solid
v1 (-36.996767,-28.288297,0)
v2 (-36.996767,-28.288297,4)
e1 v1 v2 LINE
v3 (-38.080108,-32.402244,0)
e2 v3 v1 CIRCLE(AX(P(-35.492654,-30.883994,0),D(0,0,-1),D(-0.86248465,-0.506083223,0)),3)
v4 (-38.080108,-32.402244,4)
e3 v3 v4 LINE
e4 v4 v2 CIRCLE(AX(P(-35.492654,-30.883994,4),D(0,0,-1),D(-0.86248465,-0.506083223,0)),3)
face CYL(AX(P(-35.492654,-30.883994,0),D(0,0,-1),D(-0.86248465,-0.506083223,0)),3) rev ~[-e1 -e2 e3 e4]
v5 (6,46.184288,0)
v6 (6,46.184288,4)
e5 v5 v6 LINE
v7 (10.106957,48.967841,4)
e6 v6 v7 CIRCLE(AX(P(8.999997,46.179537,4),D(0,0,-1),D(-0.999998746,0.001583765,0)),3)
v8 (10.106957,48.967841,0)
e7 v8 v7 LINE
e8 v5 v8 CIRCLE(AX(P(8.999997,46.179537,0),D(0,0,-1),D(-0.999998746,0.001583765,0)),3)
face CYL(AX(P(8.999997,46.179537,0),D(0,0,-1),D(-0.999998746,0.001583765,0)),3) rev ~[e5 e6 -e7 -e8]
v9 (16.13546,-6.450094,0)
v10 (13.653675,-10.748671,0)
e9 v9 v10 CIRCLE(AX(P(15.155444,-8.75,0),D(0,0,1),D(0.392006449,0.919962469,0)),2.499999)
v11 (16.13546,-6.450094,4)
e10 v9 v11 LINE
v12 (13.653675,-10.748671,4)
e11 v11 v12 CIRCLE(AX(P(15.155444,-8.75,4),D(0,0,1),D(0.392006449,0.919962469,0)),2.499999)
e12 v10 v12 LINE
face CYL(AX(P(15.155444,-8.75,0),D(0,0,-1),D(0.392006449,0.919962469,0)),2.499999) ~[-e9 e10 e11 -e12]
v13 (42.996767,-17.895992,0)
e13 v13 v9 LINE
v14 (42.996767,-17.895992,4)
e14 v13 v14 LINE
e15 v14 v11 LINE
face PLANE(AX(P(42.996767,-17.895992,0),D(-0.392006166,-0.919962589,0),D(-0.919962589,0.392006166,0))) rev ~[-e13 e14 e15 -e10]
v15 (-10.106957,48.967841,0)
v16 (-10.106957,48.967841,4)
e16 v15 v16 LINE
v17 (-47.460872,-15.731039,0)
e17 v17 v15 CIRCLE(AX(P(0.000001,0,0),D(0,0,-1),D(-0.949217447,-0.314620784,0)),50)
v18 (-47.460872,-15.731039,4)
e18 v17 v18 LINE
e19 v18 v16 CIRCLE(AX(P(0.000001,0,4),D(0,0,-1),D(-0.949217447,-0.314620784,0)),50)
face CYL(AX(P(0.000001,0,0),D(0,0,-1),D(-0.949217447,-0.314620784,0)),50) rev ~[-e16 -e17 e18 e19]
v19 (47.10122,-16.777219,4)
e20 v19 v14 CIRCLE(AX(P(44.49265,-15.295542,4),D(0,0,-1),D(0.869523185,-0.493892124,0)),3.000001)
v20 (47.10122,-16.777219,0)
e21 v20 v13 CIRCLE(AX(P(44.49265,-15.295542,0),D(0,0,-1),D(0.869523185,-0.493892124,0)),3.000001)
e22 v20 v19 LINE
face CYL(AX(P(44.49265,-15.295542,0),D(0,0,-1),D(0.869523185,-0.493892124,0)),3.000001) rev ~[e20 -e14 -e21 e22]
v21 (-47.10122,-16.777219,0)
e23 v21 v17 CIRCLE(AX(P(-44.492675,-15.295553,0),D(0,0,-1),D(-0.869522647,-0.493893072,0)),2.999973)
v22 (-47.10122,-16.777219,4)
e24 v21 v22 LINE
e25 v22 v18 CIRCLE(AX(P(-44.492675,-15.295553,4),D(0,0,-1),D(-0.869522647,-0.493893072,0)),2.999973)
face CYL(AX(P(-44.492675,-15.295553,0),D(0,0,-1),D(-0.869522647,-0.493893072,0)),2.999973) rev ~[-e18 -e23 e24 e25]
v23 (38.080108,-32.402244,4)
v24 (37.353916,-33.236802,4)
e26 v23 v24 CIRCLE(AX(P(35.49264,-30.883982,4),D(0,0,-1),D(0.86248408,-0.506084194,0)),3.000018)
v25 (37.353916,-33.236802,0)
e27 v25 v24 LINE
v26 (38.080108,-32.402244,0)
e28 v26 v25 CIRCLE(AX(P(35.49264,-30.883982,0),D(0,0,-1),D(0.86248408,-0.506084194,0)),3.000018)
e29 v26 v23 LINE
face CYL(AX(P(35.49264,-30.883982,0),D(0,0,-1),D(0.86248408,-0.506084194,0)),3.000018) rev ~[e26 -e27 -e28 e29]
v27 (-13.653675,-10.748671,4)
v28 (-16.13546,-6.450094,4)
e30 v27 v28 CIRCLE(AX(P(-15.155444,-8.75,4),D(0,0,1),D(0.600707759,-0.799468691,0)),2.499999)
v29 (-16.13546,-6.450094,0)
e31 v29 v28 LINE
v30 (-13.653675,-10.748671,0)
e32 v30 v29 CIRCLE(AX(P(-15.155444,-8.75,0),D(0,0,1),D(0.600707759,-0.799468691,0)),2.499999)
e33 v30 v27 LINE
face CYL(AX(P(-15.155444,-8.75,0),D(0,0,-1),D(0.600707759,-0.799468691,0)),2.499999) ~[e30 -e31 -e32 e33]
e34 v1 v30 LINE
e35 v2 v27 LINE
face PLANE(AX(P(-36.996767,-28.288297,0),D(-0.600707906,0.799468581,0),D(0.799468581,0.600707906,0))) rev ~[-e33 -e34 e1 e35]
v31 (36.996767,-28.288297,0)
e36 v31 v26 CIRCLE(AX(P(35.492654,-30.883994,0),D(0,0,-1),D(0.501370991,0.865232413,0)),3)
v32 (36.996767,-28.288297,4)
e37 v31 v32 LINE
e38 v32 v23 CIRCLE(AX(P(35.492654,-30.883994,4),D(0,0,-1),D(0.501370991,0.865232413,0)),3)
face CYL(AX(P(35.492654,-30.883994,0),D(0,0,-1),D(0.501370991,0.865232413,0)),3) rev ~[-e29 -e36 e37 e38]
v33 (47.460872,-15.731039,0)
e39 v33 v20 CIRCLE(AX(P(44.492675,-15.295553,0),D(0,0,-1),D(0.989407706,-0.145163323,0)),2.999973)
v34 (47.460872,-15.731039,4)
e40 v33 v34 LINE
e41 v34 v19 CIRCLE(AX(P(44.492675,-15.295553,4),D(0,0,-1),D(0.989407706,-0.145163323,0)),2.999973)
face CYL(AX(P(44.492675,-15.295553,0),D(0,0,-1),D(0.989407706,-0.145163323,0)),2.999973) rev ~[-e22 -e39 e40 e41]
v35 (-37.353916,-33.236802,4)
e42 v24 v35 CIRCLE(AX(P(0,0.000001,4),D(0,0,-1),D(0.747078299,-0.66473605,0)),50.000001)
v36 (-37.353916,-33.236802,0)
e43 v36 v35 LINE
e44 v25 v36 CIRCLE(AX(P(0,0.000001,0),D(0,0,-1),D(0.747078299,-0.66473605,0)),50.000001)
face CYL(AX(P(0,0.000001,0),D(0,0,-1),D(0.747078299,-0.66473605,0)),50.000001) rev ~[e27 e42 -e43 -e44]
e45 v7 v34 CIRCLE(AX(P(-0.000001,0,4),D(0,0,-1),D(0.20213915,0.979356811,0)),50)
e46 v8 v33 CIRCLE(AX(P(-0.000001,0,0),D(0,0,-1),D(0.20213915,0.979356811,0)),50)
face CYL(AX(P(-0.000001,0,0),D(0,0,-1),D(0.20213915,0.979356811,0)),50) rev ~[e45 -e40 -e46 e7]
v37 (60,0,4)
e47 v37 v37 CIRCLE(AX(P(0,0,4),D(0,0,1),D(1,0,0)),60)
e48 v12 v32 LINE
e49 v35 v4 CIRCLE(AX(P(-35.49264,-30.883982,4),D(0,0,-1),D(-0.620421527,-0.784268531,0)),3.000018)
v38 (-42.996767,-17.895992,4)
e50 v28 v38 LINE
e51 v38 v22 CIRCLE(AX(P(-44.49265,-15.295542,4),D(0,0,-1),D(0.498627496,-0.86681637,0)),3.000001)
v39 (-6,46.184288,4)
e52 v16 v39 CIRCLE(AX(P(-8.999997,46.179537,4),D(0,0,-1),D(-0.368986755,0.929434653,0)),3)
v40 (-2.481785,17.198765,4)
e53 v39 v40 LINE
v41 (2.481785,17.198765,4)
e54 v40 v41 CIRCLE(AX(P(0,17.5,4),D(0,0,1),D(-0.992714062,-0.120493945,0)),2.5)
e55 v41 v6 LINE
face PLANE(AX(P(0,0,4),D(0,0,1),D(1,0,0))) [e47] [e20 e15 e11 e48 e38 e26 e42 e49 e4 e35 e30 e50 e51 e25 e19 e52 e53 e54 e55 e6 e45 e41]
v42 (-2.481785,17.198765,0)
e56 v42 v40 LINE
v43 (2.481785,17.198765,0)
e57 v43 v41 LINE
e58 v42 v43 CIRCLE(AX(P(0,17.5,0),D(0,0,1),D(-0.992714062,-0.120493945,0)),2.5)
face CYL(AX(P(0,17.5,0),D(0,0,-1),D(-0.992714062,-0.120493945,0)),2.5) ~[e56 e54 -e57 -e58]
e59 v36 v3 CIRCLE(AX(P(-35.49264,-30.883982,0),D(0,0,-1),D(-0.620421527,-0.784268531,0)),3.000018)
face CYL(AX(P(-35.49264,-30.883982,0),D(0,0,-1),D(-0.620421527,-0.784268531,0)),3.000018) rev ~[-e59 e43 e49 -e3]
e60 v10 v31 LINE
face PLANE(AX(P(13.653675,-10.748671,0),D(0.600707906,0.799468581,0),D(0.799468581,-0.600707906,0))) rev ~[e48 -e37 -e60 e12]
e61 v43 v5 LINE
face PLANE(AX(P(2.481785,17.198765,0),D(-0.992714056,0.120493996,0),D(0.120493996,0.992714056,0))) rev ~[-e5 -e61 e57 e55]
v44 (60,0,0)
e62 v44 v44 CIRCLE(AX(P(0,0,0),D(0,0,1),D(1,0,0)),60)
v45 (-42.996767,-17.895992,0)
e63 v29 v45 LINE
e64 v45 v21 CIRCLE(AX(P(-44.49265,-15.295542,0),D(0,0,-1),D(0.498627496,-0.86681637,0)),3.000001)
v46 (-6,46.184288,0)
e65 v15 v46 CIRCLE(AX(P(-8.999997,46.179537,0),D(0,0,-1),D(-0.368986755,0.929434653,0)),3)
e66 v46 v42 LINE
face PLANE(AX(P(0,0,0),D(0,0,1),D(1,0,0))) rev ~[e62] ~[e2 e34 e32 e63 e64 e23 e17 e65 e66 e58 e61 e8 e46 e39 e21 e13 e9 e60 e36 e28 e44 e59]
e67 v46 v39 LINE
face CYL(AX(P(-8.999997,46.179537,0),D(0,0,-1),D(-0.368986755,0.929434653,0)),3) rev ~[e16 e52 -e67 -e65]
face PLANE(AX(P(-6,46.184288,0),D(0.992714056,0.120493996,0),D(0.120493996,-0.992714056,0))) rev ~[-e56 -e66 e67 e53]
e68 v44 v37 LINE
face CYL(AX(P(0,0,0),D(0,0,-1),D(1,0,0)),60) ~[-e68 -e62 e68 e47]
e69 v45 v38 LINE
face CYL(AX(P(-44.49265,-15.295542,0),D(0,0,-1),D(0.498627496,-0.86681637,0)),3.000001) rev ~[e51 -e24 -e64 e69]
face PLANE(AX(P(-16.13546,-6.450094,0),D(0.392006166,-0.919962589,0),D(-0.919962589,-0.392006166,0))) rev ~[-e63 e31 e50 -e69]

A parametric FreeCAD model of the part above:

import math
import FreeCAD as App
import Part
import Sketcher
Q = App.Units.Quantity

doc = App.newDocument("Part")
params = doc.addObject("Spreadsheet::Sheet", "Params")
for row, (alias, value) in enumerate([
    ("sketch1_diameter", "120 mm"),
    ("sketch1_radius", "3 mm"),
    ("sketch1_radius2", "50 mm"),
    ("sketch1_radius3", "2.499999 mm"),
    ("pad1_length", "4 mm"),
], start=1):
    params.set(f"A{row}", alias)
    params.set(f"B{row}", "=" + value)
    params.setAlias(f"B{row}", alias)

body = doc.addObject("PartDesign::Body", "Body")

sketch1 = body.newObject("Sketcher::SketchObject", "Sketch")
sketch1.AttachmentSupport = (doc.getObject("XY_Plane"), [""])
sketch1.MapMode = "FlatFace"
sketch1.addGeometry([
    Part.Circle(App.Vector(0, 0, 0), App.Vector(0, 0, 1), 60),
    Part.LineSegment(App.Vector(2.5, 17.2, 0), App.Vector(6, 46.2, 0)),
    Part.ArcOfCircle(Part.Circle(App.Vector(9, 46.2, 0), App.Vector(0, 0, 1), 3), math.radians(68), math.radians(180)),
    Part.ArcOfCircle(Part.Circle(App.Vector(0, 0, 0), App.Vector(0, 0, 1), 50), math.radians(-18), math.radians(78)),
    Part.ArcOfCircle(Part.Circle(App.Vector(44.5, -15.3, 0), App.Vector(0, 0, 1), 3), math.radians(-30), math.radians(-8)),
    Part.ArcOfCircle(Part.Circle(App.Vector(44.5, -15.3, 0), App.Vector(0, 0, 1), 3), math.radians(-120), math.radians(-30)),
    Part.LineSegment(App.Vector(43, -17.9, 0), App.Vector(16.1, -6.5, 0)),
    Part.ArcOfCircle(Part.Circle(App.Vector(15.2, -8.7, 0), App.Vector(0, 0, 1), 2.5), math.radians(67), math.radians(233)),
    Part.LineSegment(App.Vector(13.7, -10.7, 0), App.Vector(37, -28.3, 0)),
    Part.ArcOfCircle(Part.Circle(App.Vector(35.5, -30.9, 0), App.Vector(0, 0, 1), 3), math.radians(-30), math.radians(60)),
    Part.ArcOfCircle(Part.Circle(App.Vector(35.5, -30.9, 0), App.Vector(0, 0, 1), 3), math.radians(-52), math.radians(-30)),
    Part.ArcOfCircle(Part.Circle(App.Vector(0, 0, 0), App.Vector(0, 0, 1), 50), math.radians(-138), math.radians(-42)),
    Part.ArcOfCircle(Part.Circle(App.Vector(-35.5, -30.9, 0), App.Vector(0, 0, 1), 3), math.radians(-150), math.radians(-128)),
    Part.ArcOfCircle(Part.Circle(App.Vector(-35.5, -30.9, 0), App.Vector(0, 0, 1), 3), math.radians(120), math.radians(210)),
    Part.LineSegment(App.Vector(-37, -28.3, 0), App.Vector(-13.7, -10.7, 0)),
    Part.ArcOfCircle(Part.Circle(App.Vector(-15.2, -8.7, 0), App.Vector(0, 0, 1), 2.5), math.radians(-53), math.radians(113)),
    Part.LineSegment(App.Vector(-16.1, -6.5, 0), App.Vector(-43, -17.9, 0)),
    Part.ArcOfCircle(Part.Circle(App.Vector(-44.5, -15.3, 0), App.Vector(0, 0, 1), 3), math.radians(-150), math.radians(-60)),
    Part.ArcOfCircle(Part.Circle(App.Vector(-44.5, -15.3, 0), App.Vector(0, 0, 1), 3), math.radians(-172), math.radians(-150)),
    Part.ArcOfCircle(Part.Circle(App.Vector(0, 0, 0), App.Vector(0, 0, 1), 50), math.radians(102), math.radians(198)),
    Part.ArcOfCircle(Part.Circle(App.Vector(-9, 46.2, 0), App.Vector(0, 0, 1), 3), math.radians(0), math.radians(112)),
    Part.LineSegment(App.Vector(-6, 46.2, 0), App.Vector(-2.5, 17.2, 0)),
    Part.ArcOfCircle(Part.Circle(App.Vector(0, 17.5, 0), App.Vector(0, 0, 1), 2.5), math.radians(-173), math.radians(-7)),
], False)
sketch1.addConstraint([
    Sketcher.Constraint("Coincident", 1, 2, 2, 2),
    Sketcher.Constraint("Coincident", 2, 1, 3, 2),
    Sketcher.Constraint("Coincident", 3, 1, 4, 2),
    Sketcher.Constraint("Tangent", 4, 1, 5, 2),
    Sketcher.Constraint("Coincident", 5, 1, 6, 1),
    Sketcher.Constraint("Tangent", 6, 2, 7, 1),
    Sketcher.Constraint("Tangent", 7, 2, 8, 1),
    Sketcher.Constraint("Coincident", 8, 2, 9, 2),
    Sketcher.Constraint("Tangent", 9, 1, 10, 2),
    Sketcher.Constraint("Coincident", 10, 1, 11, 2),
    Sketcher.Constraint("Coincident", 11, 1, 12, 2),
    Sketcher.Constraint("Tangent", 12, 1, 13, 2),
    Sketcher.Constraint("Coincident", 13, 1, 14, 1),
    Sketcher.Constraint("Tangent", 14, 2, 15, 1),
    Sketcher.Constraint("Tangent", 15, 2, 16, 1),
    Sketcher.Constraint("Coincident", 16, 2, 17, 2),
    Sketcher.Constraint("Tangent", 17, 1, 18, 2),
    Sketcher.Constraint("Coincident", 18, 1, 19, 2),
    Sketcher.Constraint("Coincident", 19, 1, 20, 2),
    Sketcher.Constraint("Coincident", 20, 1, 21, 1),
    Sketcher.Constraint("Tangent", 21, 2, 22, 1),
    Sketcher.Constraint("Tangent", 22, 2, 1, 1),
    Sketcher.Constraint("Coincident", 0, 3, -1, 1),
    Sketcher.Constraint("Coincident", 3, 3, -1, 1),
    Sketcher.Constraint("Coincident", 11, 3, -1, 1),
    Sketcher.Constraint("Coincident", 19, 3, -1, 1),
    Sketcher.Constraint("Equal", 2, 5),
    Sketcher.Constraint("Equal", 5, 9),
    Sketcher.Constraint("Equal", 3, 11),
    Sketcher.Constraint("Equal", 10, 12),
    Sketcher.Constraint("Equal", 9, 13),
    Sketcher.Constraint("Equal", 7, 15),
    Sketcher.Constraint("Equal", 13, 17),
    Sketcher.Constraint("Equal", 4, 18),
    Sketcher.Constraint("Equal", 11, 19),
    Sketcher.Constraint("Equal", 17, 20),
    Sketcher.Constraint("Equal", 15, 22),
    Sketcher.Constraint("Symmetric", 10, 3, 12, 3, -2),
    Sketcher.Constraint("Symmetric", 7, 3, 15, 3, -2),
    Sketcher.Constraint("Symmetric", 5, 3, 17, 3, -2),
    Sketcher.Constraint("Symmetric", 2, 3, 20, 3, -2),
    Sketcher.Constraint("Symmetric", 21, 2, 22, 2, -2),
    Sketcher.Constraint("Horizontal", 9, 1, 12, 1),
    Sketcher.Constraint("Horizontal", 8, 2, 13, 1),
    Sketcher.Constraint("Horizontal", 6, 2, 15, 2),
    Sketcher.Constraint("Horizontal", 4, 1, 17, 1),
    Sketcher.Constraint("Equal", 1, 6),
    Sketcher.Constraint("Equal", 6, 8),
    Sketcher.Constraint("Diameter", 0, Q("120 mm")),
    Sketcher.Constraint("Radius", 2, Q("3 mm")),
    Sketcher.Constraint("Radius", 3, Q("50 mm")),
    Sketcher.Constraint("Radius", 7, Q("2.499999 mm")),
    Sketcher.Constraint("DistanceX", -1, 1, 1, 2, Q("6 mm")),
    Sketcher.Constraint("DistanceX", 8, 2, 5, 1, Q("6 mm")),
    Sketcher.Constraint("DistanceY", -1, 1, 22, 3, Q("17.5 mm")),
    Sketcher.Constraint("DistanceY", 7, 3, -1, 1, Q("8.75 mm")),
    Sketcher.Constraint("Radius", 4, Q("2.999973 mm")),
    Sketcher.Constraint("Radius", 10, Q("3.000018 mm")),
    Sketcher.Constraint("DistanceY", 11, 1, -1, 1, Q("33.236802 mm")),
    Sketcher.Constraint("DistanceX", 13, 3, 7, 3, Q("50.648098 mm")),
    Sketcher.Constraint("DistanceY", 12, 1, 17, 3, Q("17.106702 mm")),
    Sketcher.Constraint("Distance", 1, Q("29.19826 mm")),
    Sketcher.Constraint("DistanceX", -1, 1, 5, 3, Q("44.49265 mm")),
    Sketcher.Constraint("DistanceX", -1, 1, 10, 3, Q("35.49264 mm")),
    Sketcher.Constraint("DistanceY", -1, 1, 2, 1, Q("48.967841 mm")),
    Sketcher.Constraint("DistanceX", -1, 1, 4, 1, Q("47.10122 mm")),
])
sketch1.setExpression("Constraints[48]", "Params.sketch1_diameter")
sketch1.setExpression("Constraints[49]", "Params.sketch1_radius")
sketch1.setExpression("Constraints[50]", "Params.sketch1_radius2")
sketch1.setExpression("Constraints[51]", "Params.sketch1_radius3")
pad1 = body.newObject("PartDesign::Pad", "Pad")
pad1.Profile = sketch1
pad1.setExpression("Length", "Params.pad1_length")

doc.recompute()
